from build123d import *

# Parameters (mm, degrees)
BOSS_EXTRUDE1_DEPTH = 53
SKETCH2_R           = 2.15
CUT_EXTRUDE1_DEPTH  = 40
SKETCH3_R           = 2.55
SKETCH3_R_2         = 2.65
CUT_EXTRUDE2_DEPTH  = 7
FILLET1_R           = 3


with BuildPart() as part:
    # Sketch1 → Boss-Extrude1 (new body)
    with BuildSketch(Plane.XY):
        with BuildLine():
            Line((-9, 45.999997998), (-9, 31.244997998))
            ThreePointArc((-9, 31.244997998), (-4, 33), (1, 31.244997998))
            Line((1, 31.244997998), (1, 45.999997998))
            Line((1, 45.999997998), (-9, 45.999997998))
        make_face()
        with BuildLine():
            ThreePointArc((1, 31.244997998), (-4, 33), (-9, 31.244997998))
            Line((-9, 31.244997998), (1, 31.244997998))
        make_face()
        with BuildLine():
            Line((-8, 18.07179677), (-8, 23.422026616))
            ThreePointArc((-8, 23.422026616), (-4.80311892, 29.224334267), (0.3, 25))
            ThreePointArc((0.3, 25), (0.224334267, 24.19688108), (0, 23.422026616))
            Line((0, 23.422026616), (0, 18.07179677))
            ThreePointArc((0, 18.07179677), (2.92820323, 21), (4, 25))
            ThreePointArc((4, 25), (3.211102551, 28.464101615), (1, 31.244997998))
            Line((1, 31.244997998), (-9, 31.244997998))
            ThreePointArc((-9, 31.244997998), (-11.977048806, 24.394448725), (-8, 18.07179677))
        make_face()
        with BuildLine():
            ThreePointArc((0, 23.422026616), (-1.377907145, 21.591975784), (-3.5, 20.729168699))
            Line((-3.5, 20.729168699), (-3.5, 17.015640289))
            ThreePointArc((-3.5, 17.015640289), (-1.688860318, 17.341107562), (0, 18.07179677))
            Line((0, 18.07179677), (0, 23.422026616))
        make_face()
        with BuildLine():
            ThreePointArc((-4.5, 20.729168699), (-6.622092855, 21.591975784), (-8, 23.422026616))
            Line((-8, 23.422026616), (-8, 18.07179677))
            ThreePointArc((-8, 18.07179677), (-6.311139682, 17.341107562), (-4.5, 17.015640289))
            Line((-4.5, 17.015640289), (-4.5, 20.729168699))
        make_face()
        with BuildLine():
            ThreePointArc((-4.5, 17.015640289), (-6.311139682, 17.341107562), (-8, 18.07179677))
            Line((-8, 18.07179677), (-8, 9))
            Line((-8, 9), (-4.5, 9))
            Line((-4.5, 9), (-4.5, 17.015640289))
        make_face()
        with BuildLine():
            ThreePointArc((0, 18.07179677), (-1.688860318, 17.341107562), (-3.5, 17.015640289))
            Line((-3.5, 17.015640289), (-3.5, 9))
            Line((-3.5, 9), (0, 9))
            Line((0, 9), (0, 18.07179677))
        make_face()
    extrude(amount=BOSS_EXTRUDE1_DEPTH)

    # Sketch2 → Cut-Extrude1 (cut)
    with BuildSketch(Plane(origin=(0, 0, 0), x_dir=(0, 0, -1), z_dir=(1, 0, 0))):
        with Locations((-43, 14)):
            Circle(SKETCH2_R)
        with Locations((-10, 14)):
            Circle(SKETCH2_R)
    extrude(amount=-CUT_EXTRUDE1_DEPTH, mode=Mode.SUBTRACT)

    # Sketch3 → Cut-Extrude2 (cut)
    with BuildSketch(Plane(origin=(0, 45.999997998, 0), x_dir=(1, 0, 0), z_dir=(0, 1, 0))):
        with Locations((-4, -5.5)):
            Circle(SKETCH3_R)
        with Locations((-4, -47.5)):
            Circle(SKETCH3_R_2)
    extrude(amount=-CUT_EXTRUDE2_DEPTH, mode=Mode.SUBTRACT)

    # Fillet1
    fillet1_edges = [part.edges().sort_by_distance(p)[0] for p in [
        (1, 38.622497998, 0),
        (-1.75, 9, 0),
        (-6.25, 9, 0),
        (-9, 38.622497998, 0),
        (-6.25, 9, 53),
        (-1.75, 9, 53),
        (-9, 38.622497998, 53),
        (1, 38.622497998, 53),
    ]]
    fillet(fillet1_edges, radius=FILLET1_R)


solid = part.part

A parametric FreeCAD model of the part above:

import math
import FreeCAD as App
import Part
import Sketcher


def edges_at(feature, points):
    """Names of the edges that pass closest to the given points."""
    edges = feature.Shape.Edges
    near = lambda p: min(range(len(edges)), key=lambda i: edges[i].distToShape(Part.Vertex(*p))[0])
    return sorted({f"Edge{near(p) + 1}" for p in points})

doc = App.newDocument("Part")
params = doc.addObject("Spreadsheet::Sheet", "Params")
for row, (alias, value) in enumerate([
    ("sketch1_radius", "8 mm"),
    ("sketch1_radius2", "4.3 mm"),
    ("sketch1_width", "10 mm"),
    ("sketch1_width2", "3.5 mm"),
    ("pad1_length", "53 mm"),
    ("sketch2_diameter", "4.3 mm"),
    ("pocket1_length", "40 mm"),
    ("sketch3_diameter", "5.1 mm"),
    ("sketch3_diameter2", "5.3 mm"),
    ("pocket2_length", "7 mm"),
    ("fillet_radius", "3 mm"),
], start=1):
    params.set(f"A{row}", alias)
    params.set(f"B{row}", "=" + value)
    params.setAlias(f"B{row}", alias)

body = doc.addObject("PartDesign::Body", "Body")

# Sketch on XY plane
sketch1 = body.newObject("Sketcher::SketchObject", "Sketch")
sketch1.AttachmentSupport = (doc.getObject("XY_Plane"), [""])
sketch1.MapMode = "FlatFace"
sketch1.addGeometry([
    Part.LineSegment(App.Vector(-9, 46, 0), App.Vector(-9, 31.2, 0)),  # 0
    Part.ArcOfCircle(Part.Circle(App.Vector(-4, 25, 0), App.Vector(0, 0, 1), 8), math.radians(129), math.radians(240)),  # 1
    Part.LineSegment(App.Vector(-8, 18.1, 0), App.Vector(-8, 9, 0)),  # 2
    Part.LineSegment(App.Vector(-8, 9, 0), App.Vector(-4.5, 9, 0)),  # 3
    Part.LineSegment(App.Vector(-4.5, 9, 0), App.Vector(-4.5, 20.7, 0)),  # 4
    Part.ArcOfCircle(Part.Circle(App.Vector(-4, 25, 0), App.Vector(0, 0, 1), 4.3), math.radians(-158), math.radians(-97)),  # 5
    Part.ArcOfCircle(Part.Circle(App.Vector(-4, 25, 0), App.Vector(0, 0, 1), 4.3), math.radians(0), math.radians(202)),  # 6
    Part.ArcOfCircle(Part.Circle(App.Vector(-4, 25, 0), App.Vector(0, 0, 1), 4.3), math.radians(-22), math.radians(0)),  # 7
    Part.ArcOfCircle(Part.Circle(App.Vector(-4, 25, 0), App.Vector(0, 0, 1), 4.3), math.radians(-83), math.radians(-22)),  # 8
    Part.LineSegment(App.Vector(-3.5, 20.7, 0), App.Vector(-3.5, 9, 0)),  # 9
    Part.LineSegment(App.Vector(-3.5, 9, 0), App.Vector(0, 9, 0)),  # 10
    Part.LineSegment(App.Vector(0, 9, 0), App.Vector(0, 18.1, 0)),  # 11
    Part.ArcOfCircle(Part.Circle(App.Vector(-4, 25, 0), App.Vector(0, 0, 1), 8), math.radians(-60), math.radians(0)),  # 12
    Part.ArcOfCircle(Part.Circle(App.Vector(-4, 25, 0), App.Vector(0, 0, 1), 8), math.radians(0), math.radians(51)),  # 13
    Part.LineSegment(App.Vector(1, 31.2, 0), App.Vector(1, 46, 0)),  # 14
    Part.LineSegment(App.Vector(1, 46, 0), App.Vector(-9, 46, 0)),  # 15
], False)
sketch1.addConstraint([
    Sketcher.Constraint("Coincident", 0, 2, 1, 1),
    Sketcher.Constraint("Coincident", 1, 2, 2, 1),
    Sketcher.Constraint("Coincident", 2, 2, 3, 1),
    Sketcher.Constraint("Coincident", 3, 2, 4, 1),
    Sketcher.Constraint("Coincident", 4, 2, 5, 2),
    Sketcher.Constraint("Tangent", 5, 1, 6, 2),
    Sketcher.Constraint("Tangent", 6, 1, 7, 2),
    Sketcher.Constraint("Tangent", 7, 1, 8, 2),
    Sketcher.Constraint("Coincident", 8, 1, 9, 1),
    Sketcher.Constraint("Coincident", 9, 2, 10, 1),
    Sketcher.Constraint("Coincident", 10, 2, 11, 1),
    Sketcher.Constraint("Coincident", 11, 2, 12, 1),
    Sketcher.Constraint("Tangent", 12, 2, 13, 1),
    Sketcher.Constraint("Coincident", 13, 2, 14, 1),
    Sketcher.Constraint("Coincident", 14, 2, 15, 1),
    Sketcher.Constraint("Coincident", 15, 2, 0, 1),
    Sketcher.Constraint("Vertical", 0),
    Sketcher.Constraint("Vertical", 2),
    Sketcher.Constraint("Horizontal", 3),
    Sketcher.Constraint("Vertical", 4),
    Sketcher.Constraint("Vertical", 9),
    Sketcher.Constraint("Horizontal", 10),
    Sketcher.Constraint("Vertical", 11),
    Sketcher.Constraint("Vertical", 14),
    Sketcher.Constraint("Horizontal", 15),
    Sketcher.Constraint("Coincident", 5, 3, 1, 3),
    Sketcher.Constraint("Coincident", 7, 3, 1, 3),
    Sketcher.Constraint("Coincident", 12, 3, 1, 3),
    Sketcher.Constraint("Equal", 7, 8),
    Sketcher.Constraint("Equal", 1, 12),
    Sketcher.Constraint("Equal", 12, 13),
    Sketcher.Constraint("PointOnObject", 7, 1, -2),
    Sketcher.Constraint("PointOnObject", 10, 2, -2),
    Sketcher.Constraint("Horizontal", 13, 3, 6, 1),
    Sketcher.Constraint("Horizontal", 5, 1, 7, 1),
    Sketcher.Constraint("Horizontal", 4, 2, 8, 1),
    Sketcher.Constraint("Horizontal", 3, 2, 9, 2),
    Sketcher.Constraint("Horizontal", 1, 2, 11, 2),
    Sketcher.Constraint("Horizontal", 6, 1, 12, 2),
    Sketcher.Constraint("Horizontal", 0, 2, 13, 2),
    Sketcher.Constraint("Radius", 1, 8.0),
    Sketcher.Constraint("Radius", 5, 4.3),
    Sketcher.Constraint("DistanceX", 15, 2, 15, 1, 10.0),
    Sketcher.Constraint("DistanceX", 3, 1, 3, 2, 3.5),
    Sketcher.Constraint("DistanceX", 1, 3, -1, 1, 4.0),
    Sketcher.Constraint("DistanceY", -1, 1, 1, 3, 25.0),
    Sketcher.Constraint("DistanceY", -1, 1, 2, 2, 9.0),
    Sketcher.Constraint("DistanceY", 0, 2, 0, 1, 14.755),
])
sketch1.setExpression("Constraints[40]", "Params.sketch1_radius")
sketch1.setExpression("Constraints[41]", "Params.sketch1_radius2")
sketch1.setExpression("Constraints[42]", "Params.sketch1_width")
sketch1.setExpression("Constraints[43]", "Params.sketch1_width2")
pad1 = body.newObject("PartDesign::Pad", "Pad")
pad1.Profile = sketch1
pad1.setExpression("Length", "Params.pad1_length")

# Sketch on YZ plane
sketch2 = body.newObject("Sketcher::SketchObject", "Sketch001")
sketch2.AttachmentSupport = (doc.getObject("YZ_Plane"), [""])
sketch2.MapMode = "FlatFace"
sketch2.addGeometry([
    Part.Circle(App.Vector(14, 43, 0), App.Vector(0, 0, 1), 2.1),
    Part.Circle(App.Vector(14, 10, 0), App.Vector(0, 0, 1), 2.1),
], False)
sketch2.addConstraint([
    Sketcher.Constraint("Equal", 0, 1),
    Sketcher.Constraint("Vertical", 0, 3, 1, 3),
    Sketcher.Constraint("Diameter", 0, 4.3),
    Sketcher.Constraint("DistanceX", -1, 1, 0, 3, 14.0),
    Sketcher.Constraint("DistanceY", -1, 1, 0, 3, 43.0),
    Sketcher.Constraint("DistanceY", -1, 1, 1, 3, 10.0),
])
sketch2.setExpression("Constraints[2]", "Params.sketch2_diameter")
pocket1 = body.newObject("PartDesign::Pocket", "Pocket")
pocket1.Profile = sketch2
pocket1.setExpression("Length", "Params.pocket1_length")

# Sketch on XZ plane
sketch3 = body.newObject("Sketcher::SketchObject", "Sketch002")
sketch3.AttachmentSupport = (doc.getObject("XZ_Plane"), [""])
sketch3.MapMode = "FlatFace"
sketch3.AttachmentOffset = App.Placement(App.Vector(0, 0, -45.999998), App.Rotation())
sketch3.addGeometry([
    Part.Circle(App.Vector(-4, 5.5, 0), App.Vector(0, 0, 1), 2.5),
    Part.Circle(App.Vector(-4, 47.5, 0), App.Vector(0, 0, 1), 2.6),
], False)
sketch3.addConstraint([
    Sketcher.Constraint("Vertical", 0, 3, 1, 3),
    Sketcher.Constraint("Diameter", 0, 5.1),
    Sketcher.Constraint("Diameter", 1, 5.3),
    Sketcher.Constraint("DistanceX", 0, 3, -1, 1, 4.0),
    Sketcher.Constraint("DistanceY", 0, 3, 1, 3, 42.0),
    Sketcher.Constraint("DistanceY", -1, 1, 0, 3, 5.5),
])
sketch3.setExpression("Constraints[1]", "Params.sketch3_diameter")
sketch3.setExpression("Constraints[2]", "Params.sketch3_diameter2")
pocket2 = body.newObject("PartDesign::Pocket", "Pocket001")
pocket2.Profile = sketch3
pocket2.setExpression("Length", "Params.pocket2_length")
pocket2.Reversed = True
doc.recompute()

fillet = body.newObject("PartDesign::Fillet", "Fillet")
fillet.Base = (pocket2, edges_at(pocket2, [
    (1, 38.622, 0),
    (-1.75, 9, 0),
    (-6.25, 9, 0),
    (-9, 38.622, 0),
    (-6.25, 9, 53),
    (-1.75, 9, 53),
    (-9, 38.622, 53),
    (1, 38.622, 53),
]))
fillet.setExpression("Radius", "Params.fillet_radius")

doc.recompute()
